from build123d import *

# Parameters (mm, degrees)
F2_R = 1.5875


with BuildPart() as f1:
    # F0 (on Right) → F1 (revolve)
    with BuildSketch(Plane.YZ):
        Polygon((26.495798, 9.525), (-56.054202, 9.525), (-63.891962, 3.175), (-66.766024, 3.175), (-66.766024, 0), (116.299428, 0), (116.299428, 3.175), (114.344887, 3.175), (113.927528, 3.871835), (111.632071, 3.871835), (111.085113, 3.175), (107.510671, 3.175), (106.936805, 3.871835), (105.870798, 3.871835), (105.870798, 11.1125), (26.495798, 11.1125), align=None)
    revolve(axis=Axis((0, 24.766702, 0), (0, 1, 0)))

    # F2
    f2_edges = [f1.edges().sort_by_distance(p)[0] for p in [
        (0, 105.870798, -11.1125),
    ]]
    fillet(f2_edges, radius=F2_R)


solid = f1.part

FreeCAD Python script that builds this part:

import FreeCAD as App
import Part
import Sketcher
Q = App.Units.Quantity


def edges_at(feature, points):
    """Names of the edges that pass closest to the given points."""
    edges = feature.Shape.Edges
    near = lambda p: min(range(len(edges)), key=lambda i: edges[i].distToShape(Part.Vertex(*p))[0])
    return sorted({f"Edge{near(p) + 1}" for p in points})


def add_polygon(sketch, points):
    """Adds a closed chain of lines whose ends are joined by coincident constraints."""
    first, n = sketch.GeometryCount, len(points)
    for a, b in zip(points, points[1:] + points[:1]):
        sketch.addGeometry(Part.LineSegment(App.Vector(*a, 0), App.Vector(*b, 0)), False)
    for i in range(n):
        sketch.addConstraint(Sketcher.Constraint("Coincident", first + i, 2, first + (i + 1) % n, 1))

doc = App.newDocument("Part")
body = doc.addObject("PartDesign::Body", "Body")

sketch1 = body.newObject("Sketcher::SketchObject", "Sketch")
sketch1.AttachmentSupport = (doc.getObject("YZ_Plane"), [""])
sketch1.MapMode = "FlatFace"
add_polygon(sketch1, [(26.5, 9.5), (-56.1, 9.5), (-63.9, 3.2), (-66.8, 3.2), (-66.8, 0), (116.3, 0), (116.3, 3.2), (114.3, 3.2), (113.9, 3.9), (111.6, 3.9), (111.1, 3.2), (107.5, 3.2), (106.9, 3.9), (105.9, 3.9), (105.9, 11.1), (26.5, 11.1)])
sketch1.addConstraint([
    Sketcher.Constraint("Horizontal", 0),
    Sketcher.Constraint("Horizontal", 2),
    Sketcher.Constraint("Vertical", 3),
    Sketcher.Constraint("Horizontal", 4),
    Sketcher.Constraint("Vertical", 5),
    Sketcher.Constraint("Horizontal", 6),
    Sketcher.Constraint("Horizontal", 8),
    Sketcher.Constraint("Horizontal", 10),
    Sketcher.Constraint("Horizontal", 12),
    Sketcher.Constraint("Vertical", 13),
    Sketcher.Constraint("Horizontal", 14),
    Sketcher.Constraint("Vertical", 15),
    Sketcher.Constraint("PointOnObject", 3, 2, -1),
    Sketcher.Constraint("Horizontal", 2, 2, 5, 2),
    Sketcher.Constraint("Horizontal", 6, 2, 9, 2),
    Sketcher.Constraint("Horizontal", 8, 2, 11, 2),
    Sketcher.Constraint("DistanceX", 0, 2, 0, 1, Q("3.25 in")),
    Sketcher.Constraint("DistanceX", 14, 2, 14, 1, Q("3.125 in")),
    Sketcher.Constraint("DistanceY", 3, 2, 3, 1, Q("0.125 in")),
    Sketcher.Constraint("DistanceY", 15, 2, 15, 1, Q("0.0625 in")),
    Sketcher.Constraint("DistanceY", 1, 2, 0, 2, Q("0.25 in")),
    Sketcher.Constraint("DistanceX", 4, 1, 4, 2, 183.065452),
    Sketcher.Constraint("DistanceX", 6, 2, 6, 1, 1.954541),
    Sketcher.Constraint("DistanceX", 0, 2, -1, 1, 56.054202),
    Sketcher.Constraint("DistanceX", 7, 2, 5, 2, 2.3719),
    Sketcher.Constraint("DistanceX", 10, 2, 8, 2, 4.1214),
    Sketcher.Constraint("Distance", 1, 10.087268),
    Sketcher.Constraint("Distance", 7, 0.812261),
    Sketcher.Constraint("Distance", 11, 0.902719),
    Sketcher.Constraint("DistanceX", 2, 2, 2, 1, 2.874062),
    Sketcher.Constraint("DistanceX", 8, 2, 8, 1, 2.295457),
    Sketcher.Constraint("DistanceX", 10, 2, 10, 1, 3.574442),
])
revolution = body.newObject("PartDesign::Revolution", "Revolution")
revolution.Profile = sketch1
revolution.ReferenceAxis = (sketch1, ["H_Axis"])
revolution.Angle = 360
doc.recompute()

fillet = body.newObject("PartDesign::Fillet", "Fillet")
fillet.Base = (revolution, edges_at(revolution, [(0, 105.871, -11.113)]))
fillet.Radius = Q("0.0625 in")

doc.recompute()
